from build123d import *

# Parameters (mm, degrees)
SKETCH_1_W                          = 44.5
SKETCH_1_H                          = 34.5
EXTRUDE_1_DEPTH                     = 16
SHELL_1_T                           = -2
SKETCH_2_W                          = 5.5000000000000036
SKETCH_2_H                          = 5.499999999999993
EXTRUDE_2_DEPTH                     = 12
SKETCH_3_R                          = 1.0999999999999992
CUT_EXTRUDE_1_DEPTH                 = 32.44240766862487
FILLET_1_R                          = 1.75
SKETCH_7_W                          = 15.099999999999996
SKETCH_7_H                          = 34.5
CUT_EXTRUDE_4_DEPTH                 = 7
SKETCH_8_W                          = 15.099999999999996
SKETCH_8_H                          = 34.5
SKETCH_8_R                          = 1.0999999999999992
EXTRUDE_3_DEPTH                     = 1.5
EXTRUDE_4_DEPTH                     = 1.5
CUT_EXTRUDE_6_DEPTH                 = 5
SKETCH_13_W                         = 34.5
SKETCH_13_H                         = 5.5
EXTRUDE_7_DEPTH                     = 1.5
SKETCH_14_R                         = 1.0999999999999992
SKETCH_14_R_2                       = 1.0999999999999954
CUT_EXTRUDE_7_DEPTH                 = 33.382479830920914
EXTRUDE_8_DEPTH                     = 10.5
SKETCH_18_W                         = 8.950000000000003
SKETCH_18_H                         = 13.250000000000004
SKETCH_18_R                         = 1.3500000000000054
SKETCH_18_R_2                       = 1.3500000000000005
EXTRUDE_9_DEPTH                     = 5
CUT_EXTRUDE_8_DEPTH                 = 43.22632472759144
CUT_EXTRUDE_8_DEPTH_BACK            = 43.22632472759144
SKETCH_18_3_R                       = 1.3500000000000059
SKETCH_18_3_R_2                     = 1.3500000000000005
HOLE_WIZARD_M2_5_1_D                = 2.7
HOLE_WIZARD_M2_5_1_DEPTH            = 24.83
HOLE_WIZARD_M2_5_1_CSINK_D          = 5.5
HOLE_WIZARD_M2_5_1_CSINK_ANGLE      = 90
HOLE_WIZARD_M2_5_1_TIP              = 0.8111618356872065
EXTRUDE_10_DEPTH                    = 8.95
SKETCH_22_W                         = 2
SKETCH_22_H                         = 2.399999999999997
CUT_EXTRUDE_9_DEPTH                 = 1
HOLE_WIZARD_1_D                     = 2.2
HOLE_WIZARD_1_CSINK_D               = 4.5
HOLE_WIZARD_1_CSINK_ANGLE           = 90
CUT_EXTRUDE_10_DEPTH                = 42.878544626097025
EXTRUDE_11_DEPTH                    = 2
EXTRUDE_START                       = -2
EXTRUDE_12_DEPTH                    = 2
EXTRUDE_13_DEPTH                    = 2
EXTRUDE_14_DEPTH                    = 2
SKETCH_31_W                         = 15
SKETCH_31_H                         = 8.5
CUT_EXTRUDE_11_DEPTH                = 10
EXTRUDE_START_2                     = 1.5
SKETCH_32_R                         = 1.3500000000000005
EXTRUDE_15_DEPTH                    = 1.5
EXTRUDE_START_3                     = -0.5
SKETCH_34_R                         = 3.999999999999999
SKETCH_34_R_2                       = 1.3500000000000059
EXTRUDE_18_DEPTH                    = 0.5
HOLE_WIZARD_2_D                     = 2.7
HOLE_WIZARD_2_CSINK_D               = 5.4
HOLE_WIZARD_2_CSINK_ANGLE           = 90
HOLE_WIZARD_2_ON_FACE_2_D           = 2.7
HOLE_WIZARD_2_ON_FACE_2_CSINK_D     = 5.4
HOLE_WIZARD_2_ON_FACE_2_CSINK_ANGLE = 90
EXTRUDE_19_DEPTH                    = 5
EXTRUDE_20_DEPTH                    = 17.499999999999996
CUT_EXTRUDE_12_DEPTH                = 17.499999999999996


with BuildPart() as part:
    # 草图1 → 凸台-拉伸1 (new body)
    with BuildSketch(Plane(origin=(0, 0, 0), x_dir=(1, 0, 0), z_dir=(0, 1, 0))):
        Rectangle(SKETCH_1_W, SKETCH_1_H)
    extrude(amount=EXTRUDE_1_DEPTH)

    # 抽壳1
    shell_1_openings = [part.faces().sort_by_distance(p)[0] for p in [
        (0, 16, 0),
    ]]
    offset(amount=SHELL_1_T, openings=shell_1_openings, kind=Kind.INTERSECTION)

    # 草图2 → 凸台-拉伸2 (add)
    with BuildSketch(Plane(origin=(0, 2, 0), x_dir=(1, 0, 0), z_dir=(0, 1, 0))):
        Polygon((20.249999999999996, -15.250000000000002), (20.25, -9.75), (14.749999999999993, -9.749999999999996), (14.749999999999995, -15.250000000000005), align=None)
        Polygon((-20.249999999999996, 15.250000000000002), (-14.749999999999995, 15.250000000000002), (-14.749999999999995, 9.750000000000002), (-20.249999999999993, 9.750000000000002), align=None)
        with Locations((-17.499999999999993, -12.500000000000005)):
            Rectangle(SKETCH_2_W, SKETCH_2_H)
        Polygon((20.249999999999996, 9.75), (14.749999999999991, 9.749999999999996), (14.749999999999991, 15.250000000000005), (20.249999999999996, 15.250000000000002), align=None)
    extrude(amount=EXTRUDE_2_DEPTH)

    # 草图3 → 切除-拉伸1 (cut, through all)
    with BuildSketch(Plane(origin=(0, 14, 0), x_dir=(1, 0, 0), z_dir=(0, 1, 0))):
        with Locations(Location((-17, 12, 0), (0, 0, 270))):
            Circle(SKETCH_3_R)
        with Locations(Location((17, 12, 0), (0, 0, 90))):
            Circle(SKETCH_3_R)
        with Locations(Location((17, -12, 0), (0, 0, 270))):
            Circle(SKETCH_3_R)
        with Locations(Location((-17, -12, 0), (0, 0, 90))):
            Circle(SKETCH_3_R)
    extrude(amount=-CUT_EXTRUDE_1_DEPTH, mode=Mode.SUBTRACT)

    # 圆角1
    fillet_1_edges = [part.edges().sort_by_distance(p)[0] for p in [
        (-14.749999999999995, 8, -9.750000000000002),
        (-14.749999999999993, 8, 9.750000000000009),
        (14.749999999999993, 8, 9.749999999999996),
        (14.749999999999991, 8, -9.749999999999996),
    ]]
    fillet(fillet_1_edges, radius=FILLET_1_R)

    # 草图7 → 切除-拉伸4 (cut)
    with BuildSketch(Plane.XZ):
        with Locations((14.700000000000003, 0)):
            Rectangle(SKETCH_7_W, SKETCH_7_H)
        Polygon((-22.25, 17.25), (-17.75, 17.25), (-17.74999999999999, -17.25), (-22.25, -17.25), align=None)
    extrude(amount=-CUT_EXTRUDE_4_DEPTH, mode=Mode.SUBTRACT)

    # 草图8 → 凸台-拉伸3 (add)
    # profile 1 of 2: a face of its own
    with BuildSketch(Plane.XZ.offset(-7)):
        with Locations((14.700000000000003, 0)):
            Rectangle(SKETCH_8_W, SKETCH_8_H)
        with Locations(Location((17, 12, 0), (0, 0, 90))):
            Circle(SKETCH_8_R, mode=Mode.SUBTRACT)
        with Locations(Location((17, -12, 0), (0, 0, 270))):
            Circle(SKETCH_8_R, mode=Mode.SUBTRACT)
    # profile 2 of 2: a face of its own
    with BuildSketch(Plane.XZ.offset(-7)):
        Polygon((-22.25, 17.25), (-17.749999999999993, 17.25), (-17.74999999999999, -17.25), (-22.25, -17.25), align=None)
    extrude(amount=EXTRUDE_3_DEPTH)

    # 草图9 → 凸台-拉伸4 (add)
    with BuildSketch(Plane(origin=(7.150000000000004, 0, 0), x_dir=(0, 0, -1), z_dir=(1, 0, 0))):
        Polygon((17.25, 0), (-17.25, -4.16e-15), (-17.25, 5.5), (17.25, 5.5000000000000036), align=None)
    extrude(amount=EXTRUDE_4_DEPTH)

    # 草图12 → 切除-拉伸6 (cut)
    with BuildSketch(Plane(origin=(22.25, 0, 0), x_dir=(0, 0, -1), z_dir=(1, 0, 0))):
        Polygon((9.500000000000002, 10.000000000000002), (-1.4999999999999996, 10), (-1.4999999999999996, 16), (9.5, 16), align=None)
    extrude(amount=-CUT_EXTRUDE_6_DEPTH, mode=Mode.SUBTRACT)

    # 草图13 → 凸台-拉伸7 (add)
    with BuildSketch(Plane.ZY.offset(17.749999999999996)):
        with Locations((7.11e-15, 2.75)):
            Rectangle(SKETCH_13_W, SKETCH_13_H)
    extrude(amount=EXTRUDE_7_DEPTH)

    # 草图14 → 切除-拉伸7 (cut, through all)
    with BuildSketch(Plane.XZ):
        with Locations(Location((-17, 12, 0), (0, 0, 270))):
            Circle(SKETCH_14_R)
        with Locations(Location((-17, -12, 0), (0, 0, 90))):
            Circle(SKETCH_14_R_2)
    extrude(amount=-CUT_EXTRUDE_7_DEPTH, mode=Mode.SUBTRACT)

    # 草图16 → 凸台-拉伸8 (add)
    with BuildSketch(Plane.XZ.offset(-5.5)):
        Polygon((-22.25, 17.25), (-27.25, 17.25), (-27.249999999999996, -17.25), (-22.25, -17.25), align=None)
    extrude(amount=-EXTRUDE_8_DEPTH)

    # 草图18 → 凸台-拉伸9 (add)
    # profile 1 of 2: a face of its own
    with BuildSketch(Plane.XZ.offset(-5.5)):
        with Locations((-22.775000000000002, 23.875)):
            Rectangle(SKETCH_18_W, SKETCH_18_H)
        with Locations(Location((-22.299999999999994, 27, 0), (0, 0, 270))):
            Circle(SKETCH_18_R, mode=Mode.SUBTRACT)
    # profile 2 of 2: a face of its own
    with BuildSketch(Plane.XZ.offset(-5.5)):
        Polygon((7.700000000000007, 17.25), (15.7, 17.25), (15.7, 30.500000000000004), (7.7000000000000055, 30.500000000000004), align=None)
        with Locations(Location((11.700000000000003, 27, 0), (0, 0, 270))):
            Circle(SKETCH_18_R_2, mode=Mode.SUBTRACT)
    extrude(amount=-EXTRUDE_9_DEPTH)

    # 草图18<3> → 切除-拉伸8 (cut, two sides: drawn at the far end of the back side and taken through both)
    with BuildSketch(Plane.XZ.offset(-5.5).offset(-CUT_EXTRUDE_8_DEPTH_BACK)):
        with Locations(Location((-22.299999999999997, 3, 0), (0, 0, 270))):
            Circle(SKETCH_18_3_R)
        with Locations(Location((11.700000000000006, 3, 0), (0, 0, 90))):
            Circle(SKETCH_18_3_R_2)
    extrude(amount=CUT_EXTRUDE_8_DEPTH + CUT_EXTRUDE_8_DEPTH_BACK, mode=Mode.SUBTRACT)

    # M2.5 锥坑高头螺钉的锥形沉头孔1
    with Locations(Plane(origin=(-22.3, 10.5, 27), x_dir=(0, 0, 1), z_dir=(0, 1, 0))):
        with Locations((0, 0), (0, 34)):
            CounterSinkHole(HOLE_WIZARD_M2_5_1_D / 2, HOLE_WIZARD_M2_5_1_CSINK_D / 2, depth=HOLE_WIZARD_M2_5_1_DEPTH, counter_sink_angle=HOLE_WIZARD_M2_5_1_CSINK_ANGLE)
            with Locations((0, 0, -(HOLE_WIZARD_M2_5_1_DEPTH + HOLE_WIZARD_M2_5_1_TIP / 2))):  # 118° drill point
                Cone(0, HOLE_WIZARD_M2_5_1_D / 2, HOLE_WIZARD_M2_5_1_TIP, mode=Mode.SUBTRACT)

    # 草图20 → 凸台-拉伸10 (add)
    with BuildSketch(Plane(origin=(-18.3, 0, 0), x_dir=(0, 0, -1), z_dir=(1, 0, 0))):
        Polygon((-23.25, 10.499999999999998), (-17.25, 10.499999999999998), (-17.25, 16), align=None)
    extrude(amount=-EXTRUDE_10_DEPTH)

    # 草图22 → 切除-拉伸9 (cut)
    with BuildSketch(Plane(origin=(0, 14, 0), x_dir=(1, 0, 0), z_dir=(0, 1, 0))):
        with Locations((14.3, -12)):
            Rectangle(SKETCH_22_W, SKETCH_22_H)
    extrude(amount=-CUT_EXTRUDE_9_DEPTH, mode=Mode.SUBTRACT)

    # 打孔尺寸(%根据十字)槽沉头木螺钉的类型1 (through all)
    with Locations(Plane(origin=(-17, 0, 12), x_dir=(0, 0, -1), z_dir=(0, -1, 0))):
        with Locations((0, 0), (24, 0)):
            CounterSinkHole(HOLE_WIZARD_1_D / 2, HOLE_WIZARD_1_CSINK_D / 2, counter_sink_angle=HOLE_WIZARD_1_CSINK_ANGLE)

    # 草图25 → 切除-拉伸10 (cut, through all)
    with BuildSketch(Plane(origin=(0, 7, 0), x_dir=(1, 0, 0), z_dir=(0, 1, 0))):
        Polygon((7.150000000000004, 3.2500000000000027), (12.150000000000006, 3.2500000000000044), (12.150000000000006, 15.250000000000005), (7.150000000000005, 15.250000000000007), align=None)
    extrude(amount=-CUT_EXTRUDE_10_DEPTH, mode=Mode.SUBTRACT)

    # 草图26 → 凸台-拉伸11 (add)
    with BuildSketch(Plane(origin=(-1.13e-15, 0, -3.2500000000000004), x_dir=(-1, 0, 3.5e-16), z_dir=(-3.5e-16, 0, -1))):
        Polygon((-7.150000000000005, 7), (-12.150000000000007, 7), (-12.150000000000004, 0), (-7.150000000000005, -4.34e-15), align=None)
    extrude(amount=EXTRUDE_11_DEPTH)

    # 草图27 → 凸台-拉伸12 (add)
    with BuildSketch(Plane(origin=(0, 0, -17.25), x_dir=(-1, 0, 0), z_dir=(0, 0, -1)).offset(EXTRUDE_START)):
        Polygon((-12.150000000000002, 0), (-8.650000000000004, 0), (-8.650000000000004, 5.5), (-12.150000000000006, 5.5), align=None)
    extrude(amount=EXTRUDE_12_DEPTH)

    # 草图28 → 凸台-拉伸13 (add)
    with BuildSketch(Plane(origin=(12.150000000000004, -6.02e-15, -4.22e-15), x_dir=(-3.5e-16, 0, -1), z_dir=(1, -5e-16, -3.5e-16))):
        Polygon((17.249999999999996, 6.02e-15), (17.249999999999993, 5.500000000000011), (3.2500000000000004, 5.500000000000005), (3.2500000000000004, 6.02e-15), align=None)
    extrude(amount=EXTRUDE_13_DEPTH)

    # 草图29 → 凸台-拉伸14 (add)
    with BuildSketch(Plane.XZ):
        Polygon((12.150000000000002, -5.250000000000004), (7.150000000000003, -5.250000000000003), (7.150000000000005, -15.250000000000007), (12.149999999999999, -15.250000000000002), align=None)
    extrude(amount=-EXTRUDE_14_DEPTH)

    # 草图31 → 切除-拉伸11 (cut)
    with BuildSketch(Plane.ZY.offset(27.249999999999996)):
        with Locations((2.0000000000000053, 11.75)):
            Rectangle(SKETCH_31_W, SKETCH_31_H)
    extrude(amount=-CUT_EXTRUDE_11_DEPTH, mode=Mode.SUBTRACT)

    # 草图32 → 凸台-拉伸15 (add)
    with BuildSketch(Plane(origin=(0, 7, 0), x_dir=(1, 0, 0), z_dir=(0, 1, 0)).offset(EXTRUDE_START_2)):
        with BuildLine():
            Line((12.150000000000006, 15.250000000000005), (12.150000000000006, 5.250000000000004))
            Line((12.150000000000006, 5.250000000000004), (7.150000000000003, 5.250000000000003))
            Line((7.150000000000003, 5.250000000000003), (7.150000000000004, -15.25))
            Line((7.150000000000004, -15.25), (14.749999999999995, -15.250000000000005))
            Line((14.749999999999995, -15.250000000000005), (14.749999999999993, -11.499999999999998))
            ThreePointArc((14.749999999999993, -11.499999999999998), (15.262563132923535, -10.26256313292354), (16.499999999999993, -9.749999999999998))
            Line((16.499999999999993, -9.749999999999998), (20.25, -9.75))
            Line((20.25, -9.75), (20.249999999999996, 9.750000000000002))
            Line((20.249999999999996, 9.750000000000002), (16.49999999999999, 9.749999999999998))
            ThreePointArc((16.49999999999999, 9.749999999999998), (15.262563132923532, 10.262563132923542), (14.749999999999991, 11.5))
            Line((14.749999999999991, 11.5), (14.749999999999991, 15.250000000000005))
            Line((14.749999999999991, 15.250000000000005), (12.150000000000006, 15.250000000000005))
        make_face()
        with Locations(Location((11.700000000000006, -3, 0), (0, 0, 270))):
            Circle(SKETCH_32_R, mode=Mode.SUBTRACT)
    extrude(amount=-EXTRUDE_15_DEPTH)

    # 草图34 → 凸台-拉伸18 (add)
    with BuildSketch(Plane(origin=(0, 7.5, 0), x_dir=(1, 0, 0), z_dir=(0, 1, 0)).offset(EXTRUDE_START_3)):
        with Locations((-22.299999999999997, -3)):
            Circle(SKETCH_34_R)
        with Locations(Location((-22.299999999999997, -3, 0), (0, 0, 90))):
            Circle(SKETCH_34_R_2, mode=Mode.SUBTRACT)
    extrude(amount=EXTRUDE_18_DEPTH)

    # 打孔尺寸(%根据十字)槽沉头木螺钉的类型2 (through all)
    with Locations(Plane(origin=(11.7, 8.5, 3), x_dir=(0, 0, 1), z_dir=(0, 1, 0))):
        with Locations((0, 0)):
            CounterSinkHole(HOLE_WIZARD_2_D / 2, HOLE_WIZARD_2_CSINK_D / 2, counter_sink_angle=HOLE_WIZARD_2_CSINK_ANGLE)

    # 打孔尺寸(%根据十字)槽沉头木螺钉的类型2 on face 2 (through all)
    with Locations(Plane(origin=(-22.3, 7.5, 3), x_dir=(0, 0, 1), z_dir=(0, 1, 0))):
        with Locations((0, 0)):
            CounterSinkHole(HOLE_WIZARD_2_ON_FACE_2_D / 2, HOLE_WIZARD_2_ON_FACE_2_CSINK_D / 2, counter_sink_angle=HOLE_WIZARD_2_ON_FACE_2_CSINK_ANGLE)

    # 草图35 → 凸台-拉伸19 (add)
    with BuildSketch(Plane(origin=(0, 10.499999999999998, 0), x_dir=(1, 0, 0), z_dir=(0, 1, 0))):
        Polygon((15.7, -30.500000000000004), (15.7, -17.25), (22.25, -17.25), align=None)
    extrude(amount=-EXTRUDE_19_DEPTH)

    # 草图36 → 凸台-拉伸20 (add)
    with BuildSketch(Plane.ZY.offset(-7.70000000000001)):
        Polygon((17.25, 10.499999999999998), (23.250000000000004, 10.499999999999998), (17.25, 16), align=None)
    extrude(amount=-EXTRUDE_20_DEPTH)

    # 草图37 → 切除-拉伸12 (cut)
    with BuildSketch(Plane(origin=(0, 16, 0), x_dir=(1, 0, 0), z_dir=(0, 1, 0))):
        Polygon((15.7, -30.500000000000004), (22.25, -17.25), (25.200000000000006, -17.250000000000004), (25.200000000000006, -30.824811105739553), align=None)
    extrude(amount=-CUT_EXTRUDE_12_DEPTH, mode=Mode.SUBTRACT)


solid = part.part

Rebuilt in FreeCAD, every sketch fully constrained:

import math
import FreeCAD as App
import Part
import Sketcher

V = App.Vector
Q = App.Units.Quantity


def edges_at(feature, points):
    """Names of the edges that pass closest to the given points."""
    edges = feature.Shape.Edges
    near = lambda p: min(range(len(edges)), key=lambda i: edges[i].distToShape(Part.Vertex(*p))[0])
    return sorted({f"Edge{near(p) + 1}" for p in points})


def faces_at(feature, points):
    """Names of the faces that lie closest to the given points."""
    faces = feature.Shape.Faces
    near = lambda p: min(range(len(faces)), key=lambda i: faces[i].distToShape(Part.Vertex(*p))[0])
    return sorted({f"Face{near(p) + 1}" for p in points})


def add_polygon(sketch, points):
    """Adds a closed chain of lines whose ends are joined by coincident constraints."""
    first, n = sketch.GeometryCount, len(points)
    for a, b in zip(points, points[1:] + points[:1]):
        sketch.addGeometry(Part.LineSegment(App.Vector(*a, 0), App.Vector(*b, 0)), False)
    for i in range(n):
        sketch.addConstraint(Sketcher.Constraint("Coincident", first + i, 2, first + (i + 1) % n, 1))

doc = App.newDocument("Part")
body = doc.addObject("PartDesign::Body", "Body")

# Sketch on XZ plane
sketch1 = doc.addObject("Sketcher::SketchObject", "Sketch")
body.addObject(sketch1)
sketch1.AttachmentSupport = (doc.XZ_Plane, [""])
sketch1.MapMode = "FlatFace"
add_polygon(sketch1, [(-22.25, -17.25), (-22.25, 17.25), (22.25, 17.25), (22.25, -17.25)])  # lines 0-3
sketch1.addConstraint(Sketcher.Constraint("Vertical", 0))
sketch1.addConstraint(Sketcher.Constraint("Horizontal", 1))
sketch1.addConstraint(Sketcher.Constraint("Vertical", 2))
sketch1.addConstraint(Sketcher.Constraint("Horizontal", 3))
sketch1.addConstraint(Sketcher.Constraint("Symmetric", 0, 2, 2, 2, -1, 1))
sketch1.addConstraint(Sketcher.Constraint("DistanceX", 1, 1, 1, 2, Q("44.5 mm")))
sketch1.addConstraint(Sketcher.Constraint("DistanceY", 0, 1, 0, 2, Q("34.5 mm")))
pad1 = doc.addObject("PartDesign::Pad", "Pad")
body.addObject(pad1)
pad1.Profile = sketch1
pad1.Length = 16
pad1.Reversed = True
doc.recompute()

thickness = doc.addObject("PartDesign::Thickness", "Thickness")
body.addObject(thickness)
thickness.Base = (pad1, faces_at(pad1, [(0, 16, 0)]))
thickness.Value = 2
thickness.Reversed = True
thickness.Join = "Intersection"

# Sketch on XZ plane
sketch2 = doc.addObject("Sketcher::SketchObject", "Sketch001")
body.addObject(sketch2)
sketch2.AttachmentSupport = (doc.XZ_Plane, [""])
sketch2.MapMode = "FlatFace"
sketch2.AttachmentOffset = App.Placement(V(0, 0, -2), App.Rotation())
add_polygon(sketch2, [(20.25, 15.25), (20.25, 9.75), (14.75, 9.75), (14.75, 15.25)])  # lines 0-3
add_polygon(sketch2, [(-14.75, -15.25), (-20.25, -15.25), (-20.25, -9.75), (-14.75, -9.75)])  # lines 4-7
add_polygon(sketch2, [(-20.25, 9.75), (-20.25, 15.25), (-14.75, 15.25), (-14.75, 9.75)])  # lines 8-11
add_polygon(sketch2, [(14.75, -9.75), (20.25, -9.75), (20.25, -15.25), (14.75, -15.25)])  # lines 12-15
sketch2.addConstraint(Sketcher.Constraint("Vertical", 0))
sketch2.addConstraint(Sketcher.Constraint("Horizontal", 1))
sketch2.addConstraint(Sketcher.Constraint("Vertical", 2))
sketch2.addConstraint(Sketcher.Constraint("Horizontal", 3))
sketch2.addConstraint(Sketcher.Constraint("Horizontal", 4))
sketch2.addConstraint(Sketcher.Constraint("Vertical", 5))
sketch2.addConstraint(Sketcher.Constraint("Horizontal", 6))
sketch2.addConstraint(Sketcher.Constraint("Vertical", 7))
sketch2.addConstraint(Sketcher.Constraint("Vertical", 8))
sketch2.addConstraint(Sketcher.Constraint("Horizontal", 9))
sketch2.addConstraint(Sketcher.Constraint("Vertical", 10))
sketch2.addConstraint(Sketcher.Constraint("Horizontal", 11))
sketch2.addConstraint(Sketcher.Constraint("Horizontal", 12))
sketch2.addConstraint(Sketcher.Constraint("Vertical", 13))
sketch2.addConstraint(Sketcher.Constraint("Horizontal", 14))
sketch2.addConstraint(Sketcher.Constraint("Vertical", 15))
sketch2.addConstraint(Sketcher.Constraint("Symmetric", 3, 2, 4, 2, -1, 1))
sketch2.addConstraint(Sketcher.Constraint("Symmetric", 1, 2, 6, 2, -1, 1))
sketch2.addConstraint(Sketcher.Constraint("Symmetric", 11, 2, 12, 2, -1, 1))
sketch2.addConstraint(Sketcher.Constraint("Symmetric", 9, 2, 14, 2, -1, 1))
sketch2.addConstraint(Sketcher.Constraint("Symmetric", 3, 2, 8, 2, -2))
sketch2.addConstraint(Sketcher.Constraint("Symmetric", 1, 2, 10, 2, -2))
sketch2.addConstraint(Sketcher.Constraint("Equal", 14, 0))
sketch2.addConstraint(Sketcher.Constraint("DistanceX", 1, 2, 1, 1, Q("5.5 mm")))
sketch2.addConstraint(Sketcher.Constraint("DistanceX", 4, 2, 1, 2, Q("35 mm")))
sketch2.addConstraint(Sketcher.Constraint("DistanceY", 4, 2, 1, 2, Q("25 mm")))
pad2 = doc.addObject("PartDesign::Pad", "Pad001")
body.addObject(pad2)
pad2.Profile = sketch2
pad2.Length = 12
pad2.Reversed = True

# Sketch on XZ plane
sketch3 = doc.addObject("Sketcher::SketchObject", "Sketch002")
body.addObject(sketch3)
sketch3.AttachmentSupport = (doc.XZ_Plane, [""])
sketch3.MapMode = "FlatFace"
sketch3.AttachmentOffset = App.Placement(V(0, 0, -14), App.Rotation())
sketch3.addGeometry(Part.Circle(V(-17, -12, 0), V(0, 0, 1), 1.1), False)
sketch3.addGeometry(Part.Circle(V(17, -12, 0), V(0, 0, 1), 1.1), False)
sketch3.addGeometry(Part.Circle(V(17, 12, 0), V(0, 0, 1), 1.1), False)
sketch3.addGeometry(Part.Circle(V(-17, 12, 0), V(0, 0, 1), 1.1), False)
sketch3.addConstraint(Sketcher.Constraint("Equal", 0, 1))
sketch3.addConstraint(Sketcher.Constraint("Equal", 1, 2))
sketch3.addConstraint(Sketcher.Constraint("Equal", 2, 3))
sketch3.addConstraint(Sketcher.Constraint("Symmetric", 0, 3, 2, 3, -1, 1))
sketch3.addConstraint(Sketcher.Constraint("Symmetric", 1, 3, 3, 3, -1, 1))
sketch3.addConstraint(Sketcher.Constraint("Symmetric", 0, 3, 1, 3, -2))
sketch3.addConstraint(Sketcher.Constraint("Diameter", 0, Q("2.2 mm")))
sketch3.addConstraint(Sketcher.Constraint("DistanceX", 0, 3, -1, 1, Q("17 mm")))
sketch3.addConstraint(Sketcher.Constraint("DistanceY", 0, 3, -1, 1, Q("12 mm")))
pocket1 = doc.addObject("PartDesign::Pocket", "Pocket")
body.addObject(pocket1)
pocket1.Profile = sketch3
pocket1.Type = "ThroughAll"
pocket1.Reversed = True
doc.recompute()

fillet = doc.addObject("PartDesign::Fillet", "Fillet")
body.addObject(fillet)
fillet.Base = (pocket1, edges_at(pocket1, [
    (-14.75, 8, -9.75),
    (-14.75, 8, 9.75),
    (14.75, 8, 9.75),
    (14.75, 8, -9.75),
]))
fillet.Radius = 1.75

# Sketch on XZ plane
sketch4 = doc.addObject("Sketcher::SketchObject", "Sketch003")
body.addObject(sketch4)
sketch4.AttachmentSupport = (doc.XZ_Plane, [""])
sketch4.MapMode = "FlatFace"
add_polygon(sketch4, [(7.15, 17.25), (7.15, -17.25), (22.25, -17.25), (22.25, 17.25)])  # lines 0-3
add_polygon(sketch4, [(-17.75, 17.25), (-22.25, 17.25), (-22.25, -17.25), (-17.75, -17.25)])  # lines 4-7
sketch4.addConstraint(Sketcher.Constraint("Vertical", 0))
sketch4.addConstraint(Sketcher.Constraint("Horizontal", 1))
sketch4.addConstraint(Sketcher.Constraint("Vertical", 2))
sketch4.addConstraint(Sketcher.Constraint("Horizontal", 3))
sketch4.addConstraint(Sketcher.Constraint("Horizontal", 4))
sketch4.addConstraint(Sketcher.Constraint("Vertical", 5))
sketch4.addConstraint(Sketcher.Constraint("Horizontal", 6))
sketch4.addConstraint(Sketcher.Constraint("Vertical", 7))
sketch4.addConstraint(Sketcher.Constraint("Symmetric", 1, 2, 4, 2, -1, 1))
sketch4.addConstraint(Sketcher.Constraint("Horizontal", 3, 2, 4, 2))
sketch4.addConstraint(Sketcher.Constraint("Horizontal", 1, 2, 5, 2))
sketch4.addConstraint(Sketcher.Constraint("DistanceX", 1, 1, 1, 2, Q("15.1 mm")))
sketch4.addConstraint(Sketcher.Constraint("DistanceX", 4, 2, 4, 1, Q("4.5 mm")))
sketch4.addConstraint(Sketcher.Constraint("DistanceY", 0, 2, 0, 1, Q("34.5 mm")))
sketch4.addConstraint(Sketcher.Constraint("DistanceX", 6, 2, 1, 2, Q("40 mm")))
pocket2 = doc.addObject("PartDesign::Pocket", "Pocket001")
body.addObject(pocket2)
pocket2.Profile = sketch4
pocket2.Length = 7

# Sketch on XZ plane
sketch5 = doc.addObject("Sketcher::SketchObject", "Sketch004")
body.addObject(sketch5)
sketch5.AttachmentSupport = (doc.XZ_Plane, [""])
sketch5.MapMode = "FlatFace"
sketch5.AttachmentOffset = App.Placement(V(0, 0, -7), App.Rotation())
add_polygon(sketch5, [(7.15, 17.25), (7.15, -17.25), (22.25, -17.25), (22.25, 17.25)])  # lines 0-3
sketch5.addGeometry(Part.Circle(V(17, -12, 0), V(0, 0, 1), 1.1), False)  # 4
sketch5.addGeometry(Part.Circle(V(17, 12, 0), V(0, 0, 1), 1.1), False)  # 5
add_polygon(sketch5, [(-17.75, 17.25), (-22.25, 17.25), (-22.25, -17.25), (-17.75, -17.25)])  # lines 6-9
sketch5.addConstraint(Sketcher.Constraint("Vertical", 0))
sketch5.addConstraint(Sketcher.Constraint("Horizontal", 1))
sketch5.addConstraint(Sketcher.Constraint("Vertical", 2))
sketch5.addConstraint(Sketcher.Constraint("Horizontal", 3))
sketch5.addConstraint(Sketcher.Constraint("Horizontal", 6))
sketch5.addConstraint(Sketcher.Constraint("Vertical", 7))
sketch5.addConstraint(Sketcher.Constraint("Horizontal", 8))
sketch5.addConstraint(Sketcher.Constraint("Vertical", 9))
sketch5.addConstraint(Sketcher.Constraint("Equal", 4, 5))
sketch5.addConstraint(Sketcher.Constraint("Symmetric", 1, 2, 6, 2, -1, 1))
sketch5.addConstraint(Sketcher.Constraint("Symmetric", 4, 3, 5, 3, -1))
sketch5.addConstraint(Sketcher.Constraint("Horizontal", 3, 2, 6, 2))
sketch5.addConstraint(Sketcher.Constraint("Horizontal", 1, 2, 7, 2))
sketch5.addConstraint(Sketcher.Constraint("Diameter", 4, Q("2.2 mm")))
sketch5.addConstraint(Sketcher.Constraint("DistanceX", 1, 1, 1, 2, Q("15.1 mm")))
sketch5.addConstraint(Sketcher.Constraint("DistanceX", 6, 2, 6, 1, Q("4.5 mm")))
sketch5.addConstraint(Sketcher.Constraint("DistanceY", 0, 2, 0, 1, Q("34.5 mm")))
sketch5.addConstraint(Sketcher.Constraint("DistanceX", -1, 1, 4, 3, Q("17 mm")))
sketch5.addConstraint(Sketcher.Constraint("DistanceY", 4, 3, -1, 1, Q("12 mm")))
sketch5.addConstraint(Sketcher.Constraint("DistanceX", 8, 2, 1, 2, Q("40 mm")))
pad3 = doc.addObject("PartDesign::Pad", "Pad002")
body.addObject(pad3)
pad3.Profile = sketch5
pad3.Length = 1.5

# Sketch on YZ plane
sketch6 = doc.addObject("Sketcher::SketchObject", "Sketch005")
body.addObject(sketch6)
sketch6.AttachmentSupport = (doc.YZ_Plane, [""])
sketch6.MapMode = "FlatFace"
sketch6.AttachmentOffset = App.Placement(V(0, 0, 7.15), App.Rotation())
add_polygon(sketch6, [(0, 17.25), (0, -17.25), (5.5, -17.25), (5.5, 17.25)])  # lines 0-3
sketch6.addConstraint(Sketcher.Constraint("Vertical", 0))
sketch6.addConstraint(Sketcher.Constraint("Horizontal", 1))
sketch6.addConstraint(Sketcher.Constraint("Vertical", 2))
sketch6.addConstraint(Sketcher.Constraint("Horizontal", 3))
sketch6.addConstraint(Sketcher.Constraint("Symmetric", 0, 2, 3, 2, -1, 1))
sketch6.addConstraint(Sketcher.Constraint("DistanceX", 1, 1, 1, 2, Q("5.5 mm")))
sketch6.addConstraint(Sketcher.Constraint("DistanceY", 0, 2, 0, 1, Q("34.5 mm")))
pad4 = doc.addObject("PartDesign::Pad", "Pad003")
body.addObject(pad4)
pad4.Profile = sketch6
pad4.Length = 1.5

# Sketch on YZ plane
sketch7 = doc.addObject("Sketcher::SketchObject", "Sketch006")
body.addObject(sketch7)
sketch7.AttachmentSupport = (doc.YZ_Plane, [""])
sketch7.MapMode = "FlatFace"
sketch7.AttachmentOffset = App.Placement(V(0, 0, 22.25), App.Rotation())
add_polygon(sketch7, [(10, 1.5), (10, -9.5), (16, -9.5), (16, 1.5)])  # lines 0-3
sketch7.addConstraint(Sketcher.Constraint("Vertical", 0))
sketch7.addConstraint(Sketcher.Constraint("Horizontal", 1))
sketch7.addConstraint(Sketcher.Constraint("Vertical", 2))
sketch7.addConstraint(Sketcher.Constraint("Horizontal", 3))
sketch7.addConstraint(Sketcher.Constraint("DistanceX", 1, 1, 1, 2, Q("6 mm")))
sketch7.addConstraint(Sketcher.Constraint("DistanceY", 0, 2, 0, 1, Q("11 mm")))
sketch7.addConstraint(Sketcher.Constraint("DistanceX", -1, 1, 0, 2, Q("10 mm")))
sketch7.addConstraint(Sketcher.Constraint("DistanceY", 0, 2, -1, 1, Q("9.5 mm")))
pocket3 = doc.addObject("PartDesign::Pocket", "Pocket002")
body.addObject(pocket3)
pocket3.Profile = sketch7
pocket3.Length = 5

# Sketch on YZ plane
sketch8 = doc.addObject("Sketcher::SketchObject", "Sketch007")
body.addObject(sketch8)
sketch8.AttachmentSupport = (doc.YZ_Plane, [""])
sketch8.MapMode = "FlatFace"
sketch8.AttachmentOffset = App.Placement(V(0, 0, -17.75), App.Rotation())
add_polygon(sketch8, [(5.5, -17.25), (0, -17.25), (0, 17.25), (5.5, 17.25)])  # lines 0-3
sketch8.addConstraint(Sketcher.Constraint("Horizontal", 0))
sketch8.addConstraint(Sketcher.Constraint("Vertical", 1))
sketch8.addConstraint(Sketcher.Constraint("Horizontal", 2))
sketch8.addConstraint(Sketcher.Constraint("Vertical", 3))
sketch8.addConstraint(Sketcher.Constraint("Symmetric", 0, 2, 1, 2, -1, 1))
sketch8.addConstraint(Sketcher.Constraint("DistanceX", 0, 2, 0, 1, Q("5.5 mm")))
sketch8.addConstraint(Sketcher.Constraint("DistanceY", 1, 1, 1, 2, Q("34.5 mm")))
pad5 = doc.addObject("PartDesign::Pad", "Pad004")
body.addObject(pad5)
pad5.Profile = sketch8
pad5.Length = 1.5
pad5.Reversed = True

# Sketch on XZ plane
sketch9 = doc.addObject("Sketcher::SketchObject", "Sketch008")
body.addObject(sketch9)
sketch9.AttachmentSupport = (doc.XZ_Plane, [""])
sketch9.MapMode = "FlatFace"
sketch9.addGeometry(Part.Circle(V(-17, 12, 0), V(0, 0, 1), 1.1), False)
sketch9.addGeometry(Part.Circle(V(-17, -12, 0), V(0, 0, 1), 1.1), False)
sketch9.addConstraint(Sketcher.Constraint("Equal", 0, 1))
sketch9.addConstraint(Sketcher.Constraint("Symmetric", 0, 3, 1, 3, -1))
sketch9.addConstraint(Sketcher.Constraint("Diameter", 0, Q("2.2 mm")))
sketch9.addConstraint(Sketcher.Constraint("DistanceX", 0, 3, -1, 1, Q("17 mm")))
sketch9.addConstraint(Sketcher.Constraint("DistanceY", -1, 1, 0, 3, Q("12 mm")))
pocket4 = doc.addObject("PartDesign::Pocket", "Pocket003")
body.addObject(pocket4)
pocket4.Profile = sketch9
pocket4.Type = "ThroughAll"

# Sketch on XZ plane
sketch10 = doc.addObject("Sketcher::SketchObject", "Sketch009")
body.addObject(sketch10)
sketch10.AttachmentSupport = (doc.XZ_Plane, [""])
sketch10.MapMode = "FlatFace"
sketch10.AttachmentOffset = App.Placement(V(0, 0, -5.5), App.Rotation())
add_polygon(sketch10, [(-22.25, 17.25), (-27.25, 17.25), (-27.25, -17.25), (-22.25, -17.25)])  # lines 0-3
sketch10.addConstraint(Sketcher.Constraint("Horizontal", 0))
sketch10.addConstraint(Sketcher.Constraint("Vertical", 1))
sketch10.addConstraint(Sketcher.Constraint("Horizontal", 2))
sketch10.addConstraint(Sketcher.Constraint("Vertical", 3))
sketch10.addConstraint(Sketcher.Constraint("DistanceX", 0, 2, 0, 1, Q("5 mm")))
sketch10.addConstraint(Sketcher.Constraint("DistanceY", 1, 2, 1, 1, Q("34.5 mm")))
sketch10.addConstraint(Sketcher.Constraint("DistanceX", 0, 2, -1, 1, Q("27.25 mm")))
sketch10.addConstraint(Sketcher.Constraint("DistanceY", -1, 1, 0, 2, Q("17.25 mm")))
pad6 = doc.addObject("PartDesign::Pad", "Pad005")
body.addObject(pad6)
pad6.Profile = sketch10
pad6.Length = 10.5
pad6.Reversed = True

# Sketch on XZ plane
sketch11 = doc.addObject("Sketcher::SketchObject", "Sketch010")
body.addObject(sketch11)
sketch11.AttachmentSupport = (doc.XZ_Plane, [""])
sketch11.MapMode = "FlatFace"
sketch11.AttachmentOffset = App.Placement(V(0, 0, -5.5), App.Rotation())
add_polygon(sketch11, [(-27.25, 30.5), (-27.25, 17.25), (-18.3, 17.25), (-18.3, 30.5)])  # lines 0-3
sketch11.addGeometry(Part.Circle(V(-22.3, 27, 0), V(0, 0, 1), 1.35), False)  # 4
add_polygon(sketch11, [(7.7, 17.25), (15.7, 17.25), (15.7, 30.5), (7.7, 30.5)])  # lines 5-8
sketch11.addGeometry(Part.Circle(V(11.7, 27, 0), V(0, 0, 1), 1.35), False)  # 9
sketch11.addConstraint(Sketcher.Constraint("Vertical", 0))
sketch11.addConstraint(Sketcher.Constraint("Horizontal", 1))
sketch11.addConstraint(Sketcher.Constraint("Vertical", 2))
sketch11.addConstraint(Sketcher.Constraint("Horizontal", 3))
sketch11.addConstraint(Sketcher.Constraint("Horizontal", 5))
sketch11.addConstraint(Sketcher.Constraint("Vertical", 6))
sketch11.addConstraint(Sketcher.Constraint("Horizontal", 7))
sketch11.addConstraint(Sketcher.Constraint("Vertical", 8))
sketch11.addConstraint(Sketcher.Constraint("Equal", 4, 9))
sketch11.addConstraint(Sketcher.Constraint("Horizontal", 4, 3, 9, 3))
sketch11.addConstraint(Sketcher.Constraint("Horizontal", 1, 2, 5, 2))
sketch11.addConstraint(Sketcher.Constraint("Horizontal", 3, 2, 6, 2))
sketch11.addConstraint(Sketcher.Constraint("Diameter", 4, Q("2.7 mm")))
sketch11.addConstraint(Sketcher.Constraint("DistanceX", 5, 1, 5, 2, Q("8 mm")))
sketch11.addConstraint(Sketcher.Constraint("DistanceY", -1, 1, 4, 3, Q("27 mm")))
sketch11.addConstraint(Sketcher.Constraint("DistanceX", 4, 3, 9, 3, Q("34 mm")))
sketch11.addConstraint(Sketcher.Constraint("DistanceX", 4, 3, 1, 2, Q("4 mm")))
sketch11.addConstraint(Sketcher.Constraint("DistanceX", 9, 3, 5, 2, Q("4 mm")))
sketch11.addConstraint(Sketcher.Constraint("DistanceX", 1, 1, 1, 2, Q("8.95 mm")))
sketch11.addConstraint(Sketcher.Constraint("DistanceY", 0, 2, 0, 1, Q("13.25 mm")))
sketch11.addConstraint(Sketcher.Constraint("DistanceX", 4, 3, -1, 1, Q("22.3 mm")))
sketch11.addConstraint(Sketcher.Constraint("DistanceY", -1, 1, 2, 2, Q("30.5 mm")))
pad7 = doc.addObject("PartDesign::Pad", "Pad006")
body.addObject(pad7)
pad7.Profile = sketch11
pad7.Length = 5
pad7.Reversed = True

# Sketch on XZ plane
sketch12 = doc.addObject("Sketcher::SketchObject", "Sketch011")
body.addObject(sketch12)
sketch12.AttachmentSupport = (doc.XZ_Plane, [""])
sketch12.MapMode = "FlatFace"
sketch12.AttachmentOffset = App.Placement(V(0, 0, -5.5), App.Rotation())
sketch12.addGeometry(Part.Circle(V(-22.3, 3, 0), V(0, 0, 1), 1.35), False)
sketch12.addGeometry(Part.Circle(V(11.7, 3, 0), V(0, 0, 1), 1.35), False)
sketch12.addConstraint(Sketcher.Constraint("Equal", 0, 1))
sketch12.addConstraint(Sketcher.Constraint("Horizontal", 0, 3, 1, 3))
sketch12.addConstraint(Sketcher.Constraint("Diameter", 0, Q("2.7 mm")))
sketch12.addConstraint(Sketcher.Constraint("DistanceY", -1, 1, 0, 3, Q("3 mm")))
sketch12.addConstraint(Sketcher.Constraint("DistanceX", 0, 3, 1, 3, Q("34 mm")))
sketch12.addConstraint(Sketcher.Constraint("DistanceX", 0, 3, -1, 1, Q("22.3 mm")))
pocket5 = doc.addObject("PartDesign::Pocket", "Pocket004")
body.addObject(pocket5)
pocket5.Profile = sketch12
pocket5.Type = "ThroughAll"
pocket5.Midplane = True

# Sketch on XZ plane
sketch13 = doc.addObject("Sketcher::SketchObject", "Sketch012")
body.addObject(sketch13)
sketch13.AttachmentSupport = (doc.XZ_Plane, [""])
sketch13.MapMode = "FlatFace"
sketch13.AttachmentOffset = App.Placement(V(0, 0, -10.5), App.Rotation())
sketch13.addGeometry(Part.Circle(V(-22.3, 27, 0), V(0, 0, 1), 1.35), False)
sketch13.addGeometry(Part.Circle(V(11.7, 27, 0), V(0, 0, 1), 1.35), False)
sketch13.addConstraint(Sketcher.Constraint("Equal", 0, 1))
sketch13.addConstraint(Sketcher.Constraint("Horizontal", 0, 3, 1, 3))
sketch13.addConstraint(Sketcher.Constraint("Diameter", 0, Q("2.7 mm")))
sketch13.addConstraint(Sketcher.Constraint("DistanceY", -1, 1, 0, 3, Q("27 mm")))
sketch13.addConstraint(Sketcher.Constraint("DistanceX", 0, 3, 1, 3, Q("34 mm")))
sketch13.addConstraint(Sketcher.Constraint("DistanceX", 0, 3, -1, 1, Q("22.3 mm")))
doc.recompute()
hole = doc.addObject("PartDesign::Hole", "Hole")
body.addObject(hole)
hole.Profile = sketch13
hole.ThreadType = "None"
hole.Diameter = 2.7
hole.DepthType = "Dimension"
hole.Depth = 24.83
hole.DrillPoint = "Angled"
hole.DrillPointAngle = 118
hole.HoleCutType = "Countersink"
hole.HoleCutDiameter = 5.5
hole.HoleCutCountersinkAngle = 90
hole.Reversed = True

# Sketch on YZ plane
sketch14 = doc.addObject("Sketcher::SketchObject", "Sketch013")
body.addObject(sketch14)
sketch14.AttachmentSupport = (doc.YZ_Plane, [""])
sketch14.MapMode = "FlatFace"
sketch14.AttachmentOffset = App.Placement(V(0, 0, -18.3), App.Rotation())
add_polygon(sketch14, [(10.5, 23.25), (10.5, 17.25), (16, 17.25)])  # lines 0-2
sketch14.addConstraint(Sketcher.Constraint("Vertical", 0))
sketch14.addConstraint(Sketcher.Constraint("Horizontal", 1))
sketch14.addConstraint(Sketcher.Constraint("DistanceY", 0, 2, 0, 1, Q("6 mm")))
sketch14.addConstraint(Sketcher.Constraint("DistanceX", 1, 1, 1, 2, Q("5.5 mm")))
sketch14.addConstraint(Sketcher.Constraint("DistanceX", -1, 1, 1, 2, Q("16 mm")))
sketch14.addConstraint(Sketcher.Constraint("DistanceY", -1, 1, 0, 2, Q("17.25 mm")))
pad8 = doc.addObject("PartDesign::Pad", "Pad007")
body.addObject(pad8)
pad8.Profile = sketch14
pad8.Length = 8.95
pad8.Reversed = True

# Sketch on XZ plane
sketch15 = doc.addObject("Sketcher::SketchObject", "Sketch014")
body.addObject(sketch15)
sketch15.AttachmentSupport = (doc.XZ_Plane, [""])
sketch15.MapMode = "FlatFace"
sketch15.AttachmentOffset = App.Placement(V(0, 0, -14), App.Rotation())
add_polygon(sketch15, [(13.3, 10.8), (13.3, 13.2), (15.3, 13.2), (15.3, 10.8)])  # lines 0-3
sketch15.addConstraint(Sketcher.Constraint("Vertical", 0))
sketch15.addConstraint(Sketcher.Constraint("Horizontal", 1))
sketch15.addConstraint(Sketcher.Constraint("Vertical", 2))
sketch15.addConstraint(Sketcher.Constraint("Horizontal", 3))
sketch15.addConstraint(Sketcher.Constraint("DistanceX", 1, 1, 1, 2, Q("2 mm")))
sketch15.addConstraint(Sketcher.Constraint("DistanceY", 0, 1, 0, 2, Q("2.4 mm")))
sketch15.addConstraint(Sketcher.Constraint("DistanceX", -1, 1, 0, 2, Q("13.3 mm")))
sketch15.addConstraint(Sketcher.Constraint("DistanceY", -1, 1, 0, 2, Q("13.2 mm")))
pocket6 = doc.addObject("PartDesign::Pocket", "Pocket005")
body.addObject(pocket6)
pocket6.Profile = sketch15
pocket6.Length = 1
pocket6.Reversed = True

# Sketch on XZ plane
sketch16 = doc.addObject("Sketcher::SketchObject", "Sketch015")
body.addObject(sketch16)
sketch16.AttachmentSupport = (doc.XZ_Plane, [""])
sketch16.MapMode = "FlatFace"
sketch16.addGeometry(Part.Circle(V(-17, 12, 0), V(0, 0, 1), 1.1), False)
sketch16.addGeometry(Part.Circle(V(-17, -12, 0), V(0, 0, 1), 1.1), False)
sketch16.addConstraint(Sketcher.Constraint("Equal", 0, 1))
sketch16.addConstraint(Sketcher.Constraint("Symmetric", 0, 3, 1, 3, -1))
sketch16.addConstraint(Sketcher.Constraint("Diameter", 0, Q("2.2 mm")))
sketch16.addConstraint(Sketcher.Constraint("DistanceX", 0, 3, -1, 1, Q("17 mm")))
sketch16.addConstraint(Sketcher.Constraint("DistanceY", -1, 1, 0, 3, Q("12 mm")))
doc.recompute()
hole2 = doc.addObject("PartDesign::Hole", "Hole001")
body.addObject(hole2)
hole2.Profile = sketch16
hole2.ThreadType = "None"
hole2.Diameter = 2.2
hole2.DepthType = "ThroughAll"
hole2.HoleCutType = "Countersink"
hole2.HoleCutDiameter = 4.5
hole2.HoleCutCountersinkAngle = 90

# Sketch on XZ plane
sketch17 = doc.addObject("Sketcher::SketchObject", "Sketch016")
body.addObject(sketch17)
sketch17.AttachmentSupport = (doc.XZ_Plane, [""])
sketch17.MapMode = "FlatFace"
sketch17.AttachmentOffset = App.Placement(V(0, 0, -7), App.Rotation())
add_polygon(sketch17, [(7.15, -3.25), (12.15, -3.25), (12.15, -15.25), (7.15, -15.25)])  # lines 0-3
sketch17.addConstraint(Sketcher.Constraint("Horizontal", 0))
sketch17.addConstraint(Sketcher.Constraint("Vertical", 1))
sketch17.addConstraint(Sketcher.Constraint("Horizontal", 2))
sketch17.addConstraint(Sketcher.Constraint("Vertical", 3))
sketch17.addConstraint(Sketcher.Constraint("DistanceX", 0, 1, 0, 2, Q("5 mm")))
sketch17.addConstraint(Sketcher.Constraint("DistanceY", 1, 2, 1, 1, Q("12 mm")))
sketch17.addConstraint(Sketcher.Constraint("DistanceX", -1, 1, 0, 2, Q("12.15 mm")))
sketch17.addConstraint(Sketcher.Constraint("DistanceY", 0, 2, -1, 1, Q("3.25 mm")))
pocket7 = doc.addObject("PartDesign::Pocket", "Pocket006")
body.addObject(pocket7)
pocket7.Profile = sketch17
pocket7.Type = "ThroughAll"
pocket7.Reversed = True

# Sketch on XY plane
sketch18 = doc.addObject("Sketcher::SketchObject", "Sketch017")
body.addObject(sketch18)
sketch18.AttachmentSupport = (doc.XY_Plane, [""])
sketch18.MapMode = "FlatFace"
sketch18.AttachmentOffset = App.Placement(V(0, 0, -3.25), App.Rotation())
add_polygon(sketch18, [(7.15, 7), (12.15, 7), (12.15, 0), (7.15, 0)])  # lines 0-3
sketch18.addConstraint(Sketcher.Constraint("Horizontal", 0))
sketch18.addConstraint(Sketcher.Constraint("Vertical", 1))
sketch18.addConstraint(Sketcher.Constraint("Horizontal", 2))
sketch18.addConstraint(Sketcher.Constraint("Vertical", 3))
sketch18.addConstraint(Sketcher.Constraint("PointOnObject", 1, 2, -1))
sketch18.addConstraint(Sketcher.Constraint("DistanceX", 0, 1, 0, 2, Q("5 mm")))
sketch18.addConstraint(Sketcher.Constraint("DistanceY", 1, 2, 1, 1, Q("7 mm")))
sketch18.addConstraint(Sketcher.Constraint("DistanceX", -1, 1, 0, 2, Q("12.15 mm")))
pad9 = doc.addObject("PartDesign::Pad", "Pad008")
body.addObject(pad9)
pad9.Profile = sketch18
pad9.Length = 2
pad9.Reversed = True

# Sketch on XY plane
sketch19 = doc.addObject("Sketcher::SketchObject", "Sketch018")
body.addObject(sketch19)
sketch19.AttachmentSupport = (doc.XY_Plane, [""])
sketch19.MapMode = "FlatFace"
sketch19.AttachmentOffset = App.Placement(V(0, 0, -15.25), App.Rotation())
add_polygon(sketch19, [(12.15, 0), (8.65, 0), (8.65, 5.5), (12.15, 5.5)])  # lines 0-3
sketch19.addConstraint(Sketcher.Constraint("Horizontal", 0))
sketch19.addConstraint(Sketcher.Constraint("Vertical", 1))
sketch19.addConstraint(Sketcher.Constraint("Horizontal", 2))
sketch19.addConstraint(Sketcher.Constraint("Vertical", 3))
sketch19.addConstraint(Sketcher.Constraint("PointOnObject", 0, 2, -1))
sketch19.addConstraint(Sketcher.Constraint("DistanceX", 0, 2, 0, 1, Q("3.5 mm")))
sketch19.addConstraint(Sketcher.Constraint("DistanceY", 1, 1, 1, 2, Q("5.5 mm")))
sketch19.addConstraint(Sketcher.Constraint("DistanceX", -1, 1, 0, 2, Q("8.65 mm")))
pad10 = doc.addObject("PartDesign::Pad", "Pad009")
body.addObject(pad10)
pad10.Profile = sketch19
pad10.Length = 2
pad10.Reversed = True

# Sketch on YZ plane
sketch20 = doc.addObject("Sketcher::SketchObject", "Sketch019")
body.addObject(sketch20)
sketch20.AttachmentSupport = (doc.YZ_Plane, [""])
sketch20.MapMode = "FlatFace"
sketch20.AttachmentOffset = App.Placement(V(0, 0, 12.15), App.Rotation())
add_polygon(sketch20, [(0, -17.25), (5.5, -17.25), (5.5, -3.25), (0, -3.25)])  # lines 0-3
sketch20.addConstraint(Sketcher.Constraint("Horizontal", 0))
sketch20.addConstraint(Sketcher.Constraint("Vertical", 1))
sketch20.addConstraint(Sketcher.Constraint("Horizontal", 2))
sketch20.addConstraint(Sketcher.Constraint("Vertical", 3))
sketch20.addConstraint(Sketcher.Constraint("PointOnObject", 2, 2, -2))
sketch20.addConstraint(Sketcher.Constraint("DistanceY", 1, 1, 1, 2, Q("14 mm")))
sketch20.addConstraint(Sketcher.Constraint("DistanceX", 0, 1, 0, 2, Q("5.5 mm")))
sketch20.addConstraint(Sketcher.Constraint("DistanceY", 0, 2, -1, 1, Q("17.25 mm")))
pad11 = doc.addObject("PartDesign::Pad", "Pad010")
body.addObject(pad11)
pad11.Profile = sketch20
pad11.Length = 2

# Sketch on XZ plane
sketch21 = doc.addObject("Sketcher::SketchObject", "Sketch020")
body.addObject(sketch21)
sketch21.AttachmentSupport = (doc.XZ_Plane, [""])
sketch21.MapMode = "FlatFace"
add_polygon(sketch21, [(12.15, -5.25), (7.15, -5.25), (7.15, -15.25), (12.15, -15.25)])  # lines 0-3
sketch21.addConstraint(Sketcher.Constraint("Horizontal", 0))
sketch21.addConstraint(Sketcher.Constraint("Vertical", 1))
sketch21.addConstraint(Sketcher.Constraint("Horizontal", 2))
sketch21.addConstraint(Sketcher.Constraint("Vertical", 3))
sketch21.addConstraint(Sketcher.Constraint("DistanceX", 0, 2, 0, 1, Q("5 mm")))
sketch21.addConstraint(Sketcher.Constraint("DistanceY", 1, 2, 1, 1, Q("10 mm")))
sketch21.addConstraint(Sketcher.Constraint("DistanceX", -1, 1, 0, 2, Q("7.15 mm")))
sketch21.addConstraint(Sketcher.Constraint("DistanceY", 0, 2, -1, 1, Q("5.25 mm")))
pad12 = doc.addObject("PartDesign::Pad", "Pad011")
body.addObject(pad12)
pad12.Profile = sketch21
pad12.Length = 2
pad12.Reversed = True

# Sketch on YZ plane
sketch22 = doc.addObject("Sketcher::SketchObject", "Sketch021")
body.addObject(sketch22)
sketch22.AttachmentSupport = (doc.YZ_Plane, [""])
sketch22.MapMode = "FlatFace"
sketch22.AttachmentOffset = App.Placement(V(0, 0, -27.25), App.Rotation())
add_polygon(sketch22, [(16, -5.5), (7.5, -5.5), (7.5, 9.5), (16, 9.5)])  # lines 0-3
sketch22.addConstraint(Sketcher.Constraint("Horizontal", 0))
sketch22.addConstraint(Sketcher.Constraint("Vertical", 1))
sketch22.addConstraint(Sketcher.Constraint("Horizontal", 2))
sketch22.addConstraint(Sketcher.Constraint("Vertical", 3))
sketch22.addConstraint(Sketcher.Constraint("DistanceY", 1, 1, 1, 2, Q("15 mm")))
sketch22.addConstraint(Sketcher.Constraint("DistanceX", 0, 2, 0, 1, Q("8.5 mm")))
sketch22.addConstraint(Sketcher.Constraint("DistanceX", -1, 1, 2, 2, Q("16 mm")))
sketch22.addConstraint(Sketcher.Constraint("DistanceY", 0, 2, -1, 1, Q("5.5 mm")))
pocket8 = doc.addObject("PartDesign::Pocket", "Pocket007")
body.addObject(pocket8)
pocket8.Profile = sketch22
pocket8.Length = 10
pocket8.Reversed = True

# Sketch on XZ plane
sketch23 = doc.addObject("Sketcher::SketchObject", "Sketch022")
body.addObject(sketch23)
sketch23.AttachmentSupport = (doc.XZ_Plane, [""])
sketch23.MapMode = "FlatFace"
sketch23.AttachmentOffset = App.Placement(V(0, 0, -8.5), App.Rotation())
sketch23.addGeometry(Part.LineSegment(V(12.15, -15.25, 0), V(12.15, -5.25, 0)), False)
sketch23.addGeometry(Part.LineSegment(V(12.15, -5.25, 0), V(7.15, -5.25, 0)), False)
sketch23.addGeometry(Part.LineSegment(V(7.15, -5.25, 0), V(7.15, 15.25, 0)), False)
sketch23.addGeometry(Part.LineSegment(V(7.15, 15.25, 0), V(14.75, 15.25, 0)), False)
sketch23.addGeometry(Part.LineSegment(V(14.75, 15.25, 0), V(14.75, 11.5, 0)), False)
sketch23.addGeometry(Part.ArcOfCircle(Part.Circle(V(16.5, 11.5, 0), V(0, 0, 1), 1.75), math.radians(180), math.radians(270)), False)
sketch23.addGeometry(Part.LineSegment(V(16.5, 9.75, 0), V(20.25, 9.75, 0)), False)
sketch23.addGeometry(Part.LineSegment(V(20.25, 9.75, 0), V(20.25, -9.75, 0)), False)
sketch23.addGeometry(Part.LineSegment(V(20.25, -9.75, 0), V(16.5, -9.75, 0)), False)
sketch23.addGeometry(Part.ArcOfCircle(Part.Circle(V(16.5, -11.5, 0), V(0, 0, 1), 1.75), math.radians(90), math.radians(180)), False)
sketch23.addGeometry(Part.LineSegment(V(14.75, -11.5, 0), V(14.75, -15.25, 0)), False)
sketch23.addGeometry(Part.LineSegment(V(14.75, -15.25, 0), V(12.15, -15.25, 0)), False)
sketch23.addGeometry(Part.Circle(V(11.7, 3, 0), V(0, 0, 1), 1.35), False)
sketch23.addConstraint(Sketcher.Constraint("Coincident", 0, 2, 1, 1))
sketch23.addConstraint(Sketcher.Constraint("Coincident", 1, 2, 2, 1))
sketch23.addConstraint(Sketcher.Constraint("Coincident", 2, 2, 3, 1))
sketch23.addConstraint(Sketcher.Constraint("Coincident", 3, 2, 4, 1))
sketch23.addConstraint(Sketcher.Constraint("Tangent", 4, 2, 5, 1))
sketch23.addConstraint(Sketcher.Constraint("Tangent", 5, 2, 6, 1))
sketch23.addConstraint(Sketcher.Constraint("Coincident", 6, 2, 7, 1))
sketch23.addConstraint(Sketcher.Constraint("Coincident", 7, 2, 8, 1))
sketch23.addConstraint(Sketcher.Constraint("Tangent", 8, 2, 9, 1))
sketch23.addConstraint(Sketcher.Constraint("Tangent", 9, 2, 10, 1))
sketch23.addConstraint(Sketcher.Constraint("Coincident", 10, 2, 11, 1))
sketch23.addConstraint(Sketcher.Constraint("Coincident", 11, 2, 0, 1))
sketch23.addConstraint(Sketcher.Constraint("Vertical", 0))
sketch23.addConstraint(Sketcher.Constraint("Horizontal", 1))
sketch23.addConstraint(Sketcher.Constraint("Vertical", 2))
sketch23.addConstraint(Sketcher.Constraint("Horizontal", 3))
sketch23.addConstraint(Sketcher.Constraint("Vertical", 4))
sketch23.addConstraint(Sketcher.Constraint("Horizontal", 6))
sketch23.addConstraint(Sketcher.Constraint("Vertical", 7))
sketch23.addConstraint(Sketcher.Constraint("Horizontal", 8))
sketch23.addConstraint(Sketcher.Constraint("Vertical", 10))
sketch23.addConstraint(Sketcher.Constraint("Horizontal", 11))
sketch23.addConstraint(Sketcher.Constraint("Equal", 5, 9))
sketch23.addConstraint(Sketcher.Constraint("Symmetric", 5, 3, 9, 3, -1))
sketch23.addConstraint(Sketcher.Constraint("Equal", 8, 4))
sketch23.addConstraint(Sketcher.Constraint("Equal", 4, 10))
sketch23.addConstraint(Sketcher.Constraint("Diameter", 12, Q("2.7 mm")))
sketch23.addConstraint(Sketcher.Constraint("DistanceX", 1, 2, 1, 1, Q("5 mm")))
sketch23.addConstraint(Sketcher.Constraint("DistanceY", 0, 1, 0, 2, Q("10 mm")))
sketch23.addConstraint(Sketcher.Constraint("Radius", 5, Q("1.75 mm")))
sketch23.addConstraint(Sketcher.Constraint("DistanceX", 3, 1, 3, 2, Q("7.6 mm")))
sketch23.addConstraint(Sketcher.Constraint("DistanceY", 2, 1, 2, 2, Q("20.5 mm")))
sketch23.addConstraint(Sketcher.Constraint("DistanceY", 7, 2, 7, 1, Q("19.5 mm")))
sketch23.addConstraint(Sketcher.Constraint("DistanceY", -1, 1, 12, 3, Q("3 mm")))
sketch23.addConstraint(Sketcher.Constraint("DistanceX", -1, 1, 5, 3, Q("16.5 mm")))
sketch23.addConstraint(Sketcher.Constraint("DistanceX", -1, 1, 12, 3, Q("11.7 mm")))
pad13 = doc.addObject("PartDesign::Pad", "Pad012")
body.addObject(pad13)
pad13.Profile = sketch23
pad13.Length = 1.5

# Sketch on XZ plane
sketch24 = doc.addObject("Sketcher::SketchObject", "Sketch023")
body.addObject(sketch24)
sketch24.AttachmentSupport = (doc.XZ_Plane, [""])
sketch24.MapMode = "FlatFace"
sketch24.AttachmentOffset = App.Placement(V(0, 0, -7), App.Rotation())
sketch24.addGeometry(Part.Circle(V(-22.3, 3, 0), V(0, 0, 1), 4), False)
sketch24.addGeometry(Part.Circle(V(-22.3, 3, 0), V(0, 0, 1), 1.35), False)
sketch24.addConstraint(Sketcher.Constraint("Coincident", 1, 3, 0, 3))
sketch24.addConstraint(Sketcher.Constraint("Diameter", 0, Q("8 mm")))
sketch24.addConstraint(Sketcher.Constraint("Diameter", 1, Q("2.7 mm")))
sketch24.addConstraint(Sketcher.Constraint("DistanceY", -1, 1, 0, 3, Q("3 mm")))
sketch24.addConstraint(Sketcher.Constraint("DistanceX", 0, 3, -1, 1, Q("22.3 mm")))
pad14 = doc.addObject("PartDesign::Pad", "Pad013")
body.addObject(pad14)
pad14.Profile = sketch24
pad14.Length = 0.5
pad14.Reversed = True

# Sketch on XZ plane
sketch25 = doc.addObject("Sketcher::SketchObject", "Sketch024")
body.addObject(sketch25)
sketch25.AttachmentSupport = (doc.XZ_Plane, [""])
sketch25.MapMode = "FlatFace"
sketch25.AttachmentOffset = App.Placement(V(0, 0, -8.5), App.Rotation())
sketch25.addGeometry(Part.Circle(V(11.7, 3, 0), V(0, 0, 1), 1.35), False)
sketch25.addConstraint(Sketcher.Constraint("Diameter", 0, Q("2.7 mm")))
sketch25.addConstraint(Sketcher.Constraint("DistanceY", -1, 1, 0, 3, Q("3 mm")))
sketch25.addConstraint(Sketcher.Constraint("DistanceX", -1, 1, 0, 3, Q("11.7 mm")))
doc.recompute()
hole3 = doc.addObject("PartDesign::Hole", "Hole002")
body.addObject(hole3)
hole3.Profile = sketch25
hole3.ThreadType = "None"
hole3.Diameter = 2.7
hole3.DepthType = "ThroughAll"
hole3.HoleCutType = "Countersink"
hole3.HoleCutDiameter = 5.4
hole3.HoleCutCountersinkAngle = 90
hole3.Reversed = True

# Sketch on XZ plane
sketch26 = doc.addObject("Sketcher::SketchObject", "Sketch025")
body.addObject(sketch26)
sketch26.AttachmentSupport = (doc.XZ_Plane, [""])
sketch26.MapMode = "FlatFace"
sketch26.AttachmentOffset = App.Placement(V(0, 0, -7.5), App.Rotation())
sketch26.addGeometry(Part.Circle(V(-22.3, 3, 0), V(0, 0, 1), 1.35), False)
sketch26.addConstraint(Sketcher.Constraint("Diameter", 0, Q("2.7 mm")))
sketch26.addConstraint(Sketcher.Constraint("DistanceY", -1, 1, 0, 3, Q("3 mm")))
sketch26.addConstraint(Sketcher.Constraint("DistanceX", 0, 3, -1, 1, Q("22.3 mm")))
doc.recompute()
hole4 = doc.addObject("PartDesign::Hole", "Hole003")
body.addObject(hole4)
hole4.Profile = sketch26
hole4.ThreadType = "None"
hole4.Diameter = 2.7
hole4.DepthType = "ThroughAll"
hole4.HoleCutType = "Countersink"
hole4.HoleCutDiameter = 5.4
hole4.HoleCutCountersinkAngle = 90
hole4.Reversed = True

# Sketch on XZ plane
sketch27 = doc.addObject("Sketcher::SketchObject", "Sketch026")
body.addObject(sketch27)
sketch27.AttachmentSupport = (doc.XZ_Plane, [""])
sketch27.MapMode = "FlatFace"
sketch27.AttachmentOffset = App.Placement(V(0, 0, -10.5), App.Rotation())
add_polygon(sketch27, [(15.7, 17.25), (15.7, 30.5), (22.25, 17.25)])  # lines 0-2
sketch27.addConstraint(Sketcher.Constraint("Vertical", 0))
sketch27.addConstraint(Sketcher.Constraint("Horizontal", 2))
sketch27.addConstraint(Sketcher.Constraint("DistanceX", 2, 2, 2, 1, Q("6.55 mm")))
sketch27.addConstraint(Sketcher.Constraint("DistanceY", 0, 1, 0, 2, Q("13.25 mm")))
sketch27.addConstraint(Sketcher.Constraint("DistanceX", -1, 1, 0, 2, Q("15.7 mm")))
sketch27.addConstraint(Sketcher.Constraint("DistanceY", -1, 1, 0, 2, Q("30.5 mm")))
pad15 = doc.addObject("PartDesign::Pad", "Pad014")
body.addObject(pad15)
pad15.Profile = sketch27
pad15.Length = 5

# Sketch on YZ plane
sketch28 = doc.addObject("Sketcher::SketchObject", "Sketch027")
body.addObject(sketch28)
sketch28.AttachmentSupport = (doc.YZ_Plane, [""])
sketch28.MapMode = "FlatFace"
sketch28.AttachmentOffset = App.Placement(V(0, 0, 7.7), App.Rotation())
add_polygon(sketch28, [(10.5, 17.25), (10.5, 23.25), (16, 17.25)])  # lines 0-2
sketch28.addConstraint(Sketcher.Constraint("Vertical", 0))
sketch28.addConstraint(Sketcher.Constraint("Horizontal", 2))
sketch28.addConstraint(Sketcher.Constraint("DistanceY", 0, 1, 0, 2, Q("6 mm")))
sketch28.addConstraint(Sketcher.Constraint("DistanceX", 2, 2, 2, 1, Q("5.5 mm")))
sketch28.addConstraint(Sketcher.Constraint("DistanceX", -1, 1, 1, 2, Q("16 mm")))
sketch28.addConstraint(Sketcher.Constraint("DistanceY", -1, 1, 0, 2, Q("23.25 mm")))
pad16 = doc.addObject("PartDesign::Pad", "Pad015")
body.addObject(pad16)
pad16.Profile = sketch28
pad16.Length = 17.5

# Sketch on XZ plane
sketch29 = doc.addObject("Sketcher::SketchObject", "Sketch028")
body.addObject(sketch29)
sketch29.AttachmentSupport = (doc.XZ_Plane, [""])
sketch29.MapMode = "FlatFace"
sketch29.AttachmentOffset = App.Placement(V(0, 0, -16), App.Rotation())
add_polygon(sketch29, [(22.25, 17.25), (15.7, 30.5), (25.2, 30.824811), (25.2, 17.25)])  # lines 0-3
sketch29.addConstraint(Sketcher.Constraint("Vertical", 2))
sketch29.addConstraint(Sketcher.Constraint("Horizontal", 3))
sketch29.addConstraint(Sketcher.Constraint("DistanceX", 3, 2, 3, 1, Q("2.95 mm")))
sketch29.addConstraint(Sketcher.Constraint("DistanceX", -1, 1, 0, 2, Q("15.7 mm")))
sketch29.addConstraint(Sketcher.Constraint("DistanceY", -1, 1, 0, 2, Q("30.5 mm")))
sketch29.addConstraint(Sketcher.Constraint("DistanceX", -1, 1, 1, 2, Q("25.2 mm")))
sketch29.addConstraint(Sketcher.Constraint("DistanceY", -1, 1, 2, 2, Q("17.25 mm")))
sketch29.addConstraint(Sketcher.Constraint("DistanceY", 2, 2, 2, 1, Q("13.574811 mm")))
pocket9 = doc.addObject("PartDesign::Pocket", "Pocket008")
body.addObject(pocket9)
pocket9.Profile = sketch29
pocket9.Length = 17.5
pocket9.Reversed = True

doc.recompute()
